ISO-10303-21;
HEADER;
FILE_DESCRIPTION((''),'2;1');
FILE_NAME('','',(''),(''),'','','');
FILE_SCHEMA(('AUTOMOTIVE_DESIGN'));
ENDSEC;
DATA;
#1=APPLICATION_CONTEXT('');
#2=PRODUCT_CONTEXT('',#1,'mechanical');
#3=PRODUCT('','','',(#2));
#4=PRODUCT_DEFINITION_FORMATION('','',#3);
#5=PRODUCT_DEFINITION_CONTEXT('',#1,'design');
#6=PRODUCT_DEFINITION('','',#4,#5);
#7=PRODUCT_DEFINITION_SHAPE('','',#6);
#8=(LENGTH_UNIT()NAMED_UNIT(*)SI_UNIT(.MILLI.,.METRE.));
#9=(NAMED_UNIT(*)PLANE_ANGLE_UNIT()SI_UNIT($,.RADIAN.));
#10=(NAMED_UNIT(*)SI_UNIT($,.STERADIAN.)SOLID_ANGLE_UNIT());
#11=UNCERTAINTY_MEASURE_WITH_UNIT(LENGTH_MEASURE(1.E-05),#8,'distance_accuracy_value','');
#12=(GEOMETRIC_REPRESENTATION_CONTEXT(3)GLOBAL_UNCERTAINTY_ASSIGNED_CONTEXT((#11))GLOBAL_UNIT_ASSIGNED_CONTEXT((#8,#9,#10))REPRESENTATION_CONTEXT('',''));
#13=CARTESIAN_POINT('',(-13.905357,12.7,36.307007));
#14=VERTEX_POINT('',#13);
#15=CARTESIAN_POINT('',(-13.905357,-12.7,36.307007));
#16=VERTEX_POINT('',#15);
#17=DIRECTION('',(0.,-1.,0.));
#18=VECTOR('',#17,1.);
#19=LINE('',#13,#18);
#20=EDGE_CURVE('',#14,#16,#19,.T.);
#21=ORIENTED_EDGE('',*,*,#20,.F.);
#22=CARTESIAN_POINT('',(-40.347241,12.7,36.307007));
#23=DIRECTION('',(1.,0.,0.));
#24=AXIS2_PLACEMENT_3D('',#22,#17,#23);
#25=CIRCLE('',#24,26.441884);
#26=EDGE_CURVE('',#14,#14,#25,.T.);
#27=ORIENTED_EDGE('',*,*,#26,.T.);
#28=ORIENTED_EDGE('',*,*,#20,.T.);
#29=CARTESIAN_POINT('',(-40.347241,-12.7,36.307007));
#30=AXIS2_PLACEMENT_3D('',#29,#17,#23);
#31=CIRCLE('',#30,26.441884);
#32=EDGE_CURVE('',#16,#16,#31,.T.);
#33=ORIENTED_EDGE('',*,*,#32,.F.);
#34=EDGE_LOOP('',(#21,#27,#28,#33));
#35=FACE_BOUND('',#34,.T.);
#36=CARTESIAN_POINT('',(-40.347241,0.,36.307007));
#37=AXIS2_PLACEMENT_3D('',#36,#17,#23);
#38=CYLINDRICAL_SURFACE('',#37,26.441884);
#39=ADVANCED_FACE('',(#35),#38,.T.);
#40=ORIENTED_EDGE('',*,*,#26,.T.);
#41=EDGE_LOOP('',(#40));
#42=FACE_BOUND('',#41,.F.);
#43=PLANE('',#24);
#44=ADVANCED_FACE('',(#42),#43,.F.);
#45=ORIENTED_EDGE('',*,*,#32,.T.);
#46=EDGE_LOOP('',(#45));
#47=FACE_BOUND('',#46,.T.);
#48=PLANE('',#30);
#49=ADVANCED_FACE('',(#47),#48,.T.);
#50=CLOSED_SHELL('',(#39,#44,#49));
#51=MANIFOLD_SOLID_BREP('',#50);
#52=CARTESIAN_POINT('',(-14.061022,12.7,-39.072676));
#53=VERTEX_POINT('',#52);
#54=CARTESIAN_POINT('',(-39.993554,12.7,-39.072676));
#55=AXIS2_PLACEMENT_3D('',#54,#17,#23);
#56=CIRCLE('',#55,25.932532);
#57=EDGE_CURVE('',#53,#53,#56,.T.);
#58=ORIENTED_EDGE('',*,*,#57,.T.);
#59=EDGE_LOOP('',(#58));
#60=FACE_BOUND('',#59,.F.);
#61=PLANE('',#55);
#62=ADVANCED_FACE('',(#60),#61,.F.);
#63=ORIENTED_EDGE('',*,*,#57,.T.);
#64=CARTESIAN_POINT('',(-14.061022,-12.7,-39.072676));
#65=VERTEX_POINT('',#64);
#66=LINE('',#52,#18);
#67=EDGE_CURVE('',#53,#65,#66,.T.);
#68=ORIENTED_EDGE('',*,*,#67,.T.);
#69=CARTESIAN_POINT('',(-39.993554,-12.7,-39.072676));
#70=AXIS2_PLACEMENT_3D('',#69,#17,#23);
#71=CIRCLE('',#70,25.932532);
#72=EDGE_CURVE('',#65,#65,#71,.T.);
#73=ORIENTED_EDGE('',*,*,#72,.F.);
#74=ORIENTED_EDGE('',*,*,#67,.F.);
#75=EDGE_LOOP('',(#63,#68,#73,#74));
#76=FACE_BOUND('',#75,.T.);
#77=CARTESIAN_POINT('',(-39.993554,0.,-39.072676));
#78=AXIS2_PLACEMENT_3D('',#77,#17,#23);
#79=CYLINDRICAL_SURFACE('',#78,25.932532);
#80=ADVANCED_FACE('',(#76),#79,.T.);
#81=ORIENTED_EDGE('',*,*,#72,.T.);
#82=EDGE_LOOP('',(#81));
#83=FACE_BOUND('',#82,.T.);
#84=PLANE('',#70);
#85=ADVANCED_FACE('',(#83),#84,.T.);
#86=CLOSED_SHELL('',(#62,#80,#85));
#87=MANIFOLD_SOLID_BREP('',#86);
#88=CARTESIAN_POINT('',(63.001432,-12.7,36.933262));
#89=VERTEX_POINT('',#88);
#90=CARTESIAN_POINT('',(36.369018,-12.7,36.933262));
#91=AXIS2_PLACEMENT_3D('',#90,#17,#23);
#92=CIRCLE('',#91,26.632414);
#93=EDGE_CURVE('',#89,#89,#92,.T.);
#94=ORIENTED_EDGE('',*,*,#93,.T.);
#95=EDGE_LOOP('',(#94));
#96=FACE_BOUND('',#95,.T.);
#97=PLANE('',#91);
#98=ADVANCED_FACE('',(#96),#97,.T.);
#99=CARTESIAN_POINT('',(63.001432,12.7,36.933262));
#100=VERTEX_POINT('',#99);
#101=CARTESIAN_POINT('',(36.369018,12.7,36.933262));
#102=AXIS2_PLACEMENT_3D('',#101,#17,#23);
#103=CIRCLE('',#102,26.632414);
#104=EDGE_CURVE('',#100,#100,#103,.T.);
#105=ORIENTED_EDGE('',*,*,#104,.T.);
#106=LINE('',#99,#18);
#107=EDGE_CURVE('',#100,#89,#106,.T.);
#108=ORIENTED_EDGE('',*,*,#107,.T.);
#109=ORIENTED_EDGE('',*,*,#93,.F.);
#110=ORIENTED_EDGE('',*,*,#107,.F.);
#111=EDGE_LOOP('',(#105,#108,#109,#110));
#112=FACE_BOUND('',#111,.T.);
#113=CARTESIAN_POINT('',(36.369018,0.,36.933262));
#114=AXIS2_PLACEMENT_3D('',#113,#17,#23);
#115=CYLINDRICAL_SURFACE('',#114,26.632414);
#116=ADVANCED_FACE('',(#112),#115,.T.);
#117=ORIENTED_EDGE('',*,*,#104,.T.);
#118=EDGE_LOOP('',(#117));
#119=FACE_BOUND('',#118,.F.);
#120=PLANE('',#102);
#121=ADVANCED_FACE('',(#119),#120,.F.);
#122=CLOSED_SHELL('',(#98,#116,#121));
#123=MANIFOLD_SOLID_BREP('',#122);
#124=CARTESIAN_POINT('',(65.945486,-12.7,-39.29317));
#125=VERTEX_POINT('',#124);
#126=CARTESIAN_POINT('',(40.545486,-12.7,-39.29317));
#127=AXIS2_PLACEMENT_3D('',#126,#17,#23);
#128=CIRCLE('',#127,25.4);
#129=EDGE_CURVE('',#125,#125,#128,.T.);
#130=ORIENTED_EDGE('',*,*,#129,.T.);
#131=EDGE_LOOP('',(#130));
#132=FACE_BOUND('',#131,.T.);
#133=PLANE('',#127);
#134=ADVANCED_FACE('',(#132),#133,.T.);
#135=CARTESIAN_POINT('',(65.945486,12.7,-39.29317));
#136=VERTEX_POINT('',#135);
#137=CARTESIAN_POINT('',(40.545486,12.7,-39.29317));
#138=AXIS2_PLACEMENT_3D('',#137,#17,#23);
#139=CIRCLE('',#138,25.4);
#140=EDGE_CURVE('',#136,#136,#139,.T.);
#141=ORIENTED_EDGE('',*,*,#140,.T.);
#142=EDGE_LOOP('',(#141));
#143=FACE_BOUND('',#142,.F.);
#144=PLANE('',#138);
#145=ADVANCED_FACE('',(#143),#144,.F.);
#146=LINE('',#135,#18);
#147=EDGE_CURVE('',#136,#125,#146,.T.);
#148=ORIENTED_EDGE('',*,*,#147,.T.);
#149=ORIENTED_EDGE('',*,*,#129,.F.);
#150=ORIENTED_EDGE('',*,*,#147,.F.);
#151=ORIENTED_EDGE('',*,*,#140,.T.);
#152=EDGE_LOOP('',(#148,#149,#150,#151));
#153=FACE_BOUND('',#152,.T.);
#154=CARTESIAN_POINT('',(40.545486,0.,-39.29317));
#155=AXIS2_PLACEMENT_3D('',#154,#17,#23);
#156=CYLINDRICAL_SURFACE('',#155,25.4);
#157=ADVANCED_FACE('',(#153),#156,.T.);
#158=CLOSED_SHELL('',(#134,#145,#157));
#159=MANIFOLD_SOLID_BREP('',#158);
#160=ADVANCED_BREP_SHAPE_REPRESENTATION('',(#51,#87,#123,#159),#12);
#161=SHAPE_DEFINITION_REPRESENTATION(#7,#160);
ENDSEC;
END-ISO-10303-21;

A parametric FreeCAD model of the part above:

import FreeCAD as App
import Part
import Sketcher
from FreeCAD import Vector
Q = App.Units.Quantity

doc = App.newDocument("Part")
body = doc.addObject("PartDesign::Body", "Body")
body.AllowCompound = True

sketch1 = body.newObject("Sketcher::SketchObject", "Sketch")
sketch1.AttachmentSupport = (doc.getObject("XZ_Plane"), [""])
sketch1.MapMode = "FlatFace"
sketch1.addGeometry([
    Part.Circle(Vector(-40, 36, 0), Vector(0, 0, 1), 26),
    Part.Circle(Vector(36, 37, 0), Vector(0, 0, 1), 27),
    Part.Circle(Vector(-40, -39, 0), Vector(0, 0, 1), 26),
    Part.Circle(Vector(41, -39, 0), Vector(0, 0, 1), 25),
], False)
sketch1.addConstraint([
    Sketcher.Constraint("Diameter", 3, Q("2 in")),
    Sketcher.Constraint("Diameter", 0, 52.883768),
    Sketcher.Constraint("Diameter", 1, 53.264828),
    Sketcher.Constraint("Diameter", 2, 51.865064),
    Sketcher.Constraint("DistanceX", 0, 3, -1, 1, 40.347241),
    Sketcher.Constraint("DistanceY", 3, 3, -1, 1, 39.29317),
    Sketcher.Constraint("DistanceX", 0, 3, 1, 3, 76.716259),
    Sketcher.Constraint("DistanceX", 2, 3, 1, 3, 76.362572),
    Sketcher.Constraint("DistanceY", 2, 3, 1, 3, 76.005938),
    Sketcher.Constraint("DistanceX", 2, 3, 3, 3, 80.53904),
    Sketcher.Constraint("DistanceY", -1, 1, 0, 3, 36.307007),
    Sketcher.Constraint("DistanceY", -1, 1, 1, 3, 36.933262),
])
pad1 = body.newObject("PartDesign::Pad", "Pad")
pad1.Profile = sketch1
pad1.Type = "TwoLengths"
pad1.Length = Q("0.5 in")
pad1.Length2 = Q("0.5 in")

doc.recompute()
